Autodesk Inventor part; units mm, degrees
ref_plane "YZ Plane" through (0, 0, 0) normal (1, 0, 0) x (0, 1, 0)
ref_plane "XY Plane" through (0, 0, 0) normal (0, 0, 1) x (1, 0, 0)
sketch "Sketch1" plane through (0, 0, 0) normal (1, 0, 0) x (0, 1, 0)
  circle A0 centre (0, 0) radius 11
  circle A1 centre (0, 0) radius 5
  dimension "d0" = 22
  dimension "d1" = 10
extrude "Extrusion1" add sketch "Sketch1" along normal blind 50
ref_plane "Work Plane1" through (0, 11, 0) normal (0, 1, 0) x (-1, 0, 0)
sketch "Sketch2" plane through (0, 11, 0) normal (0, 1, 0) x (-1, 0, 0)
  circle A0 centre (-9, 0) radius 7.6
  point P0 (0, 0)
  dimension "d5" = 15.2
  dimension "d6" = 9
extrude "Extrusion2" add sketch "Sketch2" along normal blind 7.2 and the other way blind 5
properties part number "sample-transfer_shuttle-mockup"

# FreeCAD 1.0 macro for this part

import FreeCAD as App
import Part
import Sketcher

V = App.Vector
Q = App.Units.Quantity

doc = App.newDocument("Part")
body = doc.addObject("PartDesign::Body", "Body")

# Sketch on YZ plane
sketch1 = doc.addObject("Sketcher::SketchObject", "Sketch")
body.addObject(sketch1)
sketch1.AttachmentSupport = (doc.YZ_Plane, [""])
sketch1.MapMode = "FlatFace"
sketch1.addGeometry([
    Part.Circle(V(0, 0, 0), V(0, 0, 1), 11),
    Part.Circle(V(0, 0, 0), V(0, 0, 1), 5),
], False)
sketch1.addConstraint([
    Sketcher.Constraint("Coincident", 0, 3, -1, 1),
    Sketcher.Constraint("Coincident", 1, 3, -1, 1),
    Sketcher.Constraint("Diameter", 0, Q("22 mm")),
    Sketcher.Constraint("Diameter", 1, Q("10 mm")),
])
pad1 = doc.addObject("PartDesign::Pad", "Pad")
body.addObject(pad1)
pad1.Profile = sketch1
pad1.Length = 50

# Sketch on XZ plane
sketch2 = doc.addObject("Sketcher::SketchObject", "Sketch001")
body.addObject(sketch2)
sketch2.AttachmentSupport = (doc.XZ_Plane, [""])
sketch2.MapMode = "FlatFace"
sketch2.AttachmentOffset = App.Placement(V(0, 0, -11), App.Rotation())
sketch2.addGeometry(Part.Circle(V(9, 0, 0), V(0, 0, 1), 8), False)
sketch2.addConstraint([
    Sketcher.Constraint("PointOnObject", 0, 3, -1),
    Sketcher.Constraint("Diameter", 0, Q("15.2 mm")),
    Sketcher.Constraint("DistanceX", -1, 1, 0, 3, Q("9 mm")),
])
pad2 = doc.addObject("PartDesign::Pad", "Pad001")
body.addObject(pad2)
pad2.Profile = sketch2
pad2.Type = "TwoLengths"
pad2.Length = 7.2
pad2.Length2 = 5
pad2.Reversed = True

doc.recompute()
